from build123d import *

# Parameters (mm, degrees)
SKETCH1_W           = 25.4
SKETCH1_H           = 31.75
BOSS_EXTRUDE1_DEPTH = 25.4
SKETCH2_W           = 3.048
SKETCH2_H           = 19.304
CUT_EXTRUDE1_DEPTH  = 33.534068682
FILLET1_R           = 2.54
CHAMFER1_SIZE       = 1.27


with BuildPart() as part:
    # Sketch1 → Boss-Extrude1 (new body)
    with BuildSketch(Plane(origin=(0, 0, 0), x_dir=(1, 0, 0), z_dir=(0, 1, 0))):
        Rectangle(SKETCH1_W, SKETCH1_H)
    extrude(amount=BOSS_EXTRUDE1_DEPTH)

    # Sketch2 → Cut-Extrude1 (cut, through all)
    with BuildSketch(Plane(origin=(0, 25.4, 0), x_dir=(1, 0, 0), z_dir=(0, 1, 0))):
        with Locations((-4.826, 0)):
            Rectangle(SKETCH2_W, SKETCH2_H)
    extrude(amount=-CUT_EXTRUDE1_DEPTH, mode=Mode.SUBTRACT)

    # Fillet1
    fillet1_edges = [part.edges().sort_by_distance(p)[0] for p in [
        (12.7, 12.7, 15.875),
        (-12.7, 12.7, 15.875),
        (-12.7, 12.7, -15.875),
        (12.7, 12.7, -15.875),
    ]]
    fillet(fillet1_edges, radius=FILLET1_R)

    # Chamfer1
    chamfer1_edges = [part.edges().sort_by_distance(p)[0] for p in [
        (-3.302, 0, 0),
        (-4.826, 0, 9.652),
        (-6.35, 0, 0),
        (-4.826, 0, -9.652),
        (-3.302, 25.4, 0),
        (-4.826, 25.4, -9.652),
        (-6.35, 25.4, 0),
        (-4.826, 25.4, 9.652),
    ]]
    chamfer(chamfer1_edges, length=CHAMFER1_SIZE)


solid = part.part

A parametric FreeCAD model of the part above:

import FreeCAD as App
import Part
import Sketcher
from FreeCAD import Vector
Q = App.Units.Quantity


def edges_at(feature, points):
    """Names of the edges that pass closest to the given points."""
    edges = feature.Shape.Edges
    near = lambda p: min(range(len(edges)), key=lambda i: edges[i].distToShape(Part.Vertex(*p))[0])
    return sorted({f"Edge{near(p) + 1}" for p in points})


def add_polygon(sketch, points):
    """Adds a closed chain of lines whose ends are joined by coincident constraints."""
    first, n = sketch.GeometryCount, len(points)
    for a, b in zip(points, points[1:] + points[:1]):
        sketch.addGeometry(Part.LineSegment(App.Vector(*a, 0), App.Vector(*b, 0)), False)
    for i in range(n):
        sketch.addConstraint(Sketcher.Constraint("Coincident", first + i, 2, first + (i + 1) % n, 1))

doc = App.newDocument("Part")
body = doc.addObject("PartDesign::Body", "Body")

sketch1 = body.newObject("Sketcher::SketchObject", "Sketch")
sketch1.AttachmentSupport = (doc.getObject("XZ_Plane"), [""])
sketch1.MapMode = "FlatFace"
add_polygon(sketch1, [(-12.7, -15.875), (-12.7, 15.875), (12.7, 15.875), (12.7, -15.875)])
sketch1.addConstraint([
    Sketcher.Constraint("Vertical", 0),
    Sketcher.Constraint("Horizontal", 1),
    Sketcher.Constraint("Vertical", 2),
    Sketcher.Constraint("Horizontal", 3),
    Sketcher.Constraint("Symmetric", 0, 2, 2, 2, -1, 1),
    Sketcher.Constraint("DistanceX", 1, 1, 1, 2, Q("1 in")),
    Sketcher.Constraint("DistanceY", 0, 1, 0, 2, Q("1.25 in")),
])
pad1 = body.newObject("PartDesign::Pad", "Pad")
pad1.Profile = sketch1
pad1.Length = Q("1 in")
pad1.Reversed = True

sketch2 = body.newObject("Sketcher::SketchObject", "Sketch001")
sketch2.AttachmentSupport = (doc.getObject("XZ_Plane"), [""])
sketch2.MapMode = "FlatFace"
sketch2.AttachmentOffset = App.Placement(Vector(0, 0, -1 * 25.4), App.Rotation())
add_polygon(sketch2, [(-6.35, -9.652), (-6.35, 9.652), (-3.302, 9.652), (-3.302, -9.652)])
sketch2.addConstraint([
    Sketcher.Constraint("Vertical", 0),
    Sketcher.Constraint("Horizontal", 1),
    Sketcher.Constraint("Vertical", 2),
    Sketcher.Constraint("Horizontal", 3),
    Sketcher.Constraint("DistanceX", 1, 1, 1, 2, Q("0.12 in")),
    Sketcher.Constraint("DistanceY", 0, 1, 0, 2, Q("0.76 in")),
    Sketcher.Constraint("DistanceX", 0, 2, -1, 1, Q("0.25 in")),
    Sketcher.Constraint("DistanceY", -1, 1, 0, 2, Q("0.38 in")),
])
pocket1 = body.newObject("PartDesign::Pocket", "Pocket")
pocket1.Profile = sketch2
pocket1.Type = "ThroughAll"
pocket1.Reversed = True
doc.recompute()

fillet = body.newObject("PartDesign::Fillet", "Fillet")
fillet.Base = (pocket1, edges_at(pocket1, [
    (12.7, 12.7, 15.875),
    (-12.7, 12.7, 15.875),
    (-12.7, 12.7, -15.875),
    (12.7, 12.7, -15.875),
]))
fillet.Radius = Q("0.1 in")
doc.recompute()

chamfer = body.newObject("PartDesign::Chamfer", "Chamfer")
chamfer.Base = (fillet, edges_at(fillet, [
    (-3.302, 0, 0),
    (-4.826, 0, 9.652),
    (-6.35, 0, 0),
    (-4.826, 0, -9.652),
    (-3.302, 25.4, 0),
    (-4.826, 25.4, -9.652),
    (-6.35, 25.4, 0),
    (-4.826, 25.4, 9.652),
]))
chamfer.Size = Q("0.05 in")

doc.recompute()
